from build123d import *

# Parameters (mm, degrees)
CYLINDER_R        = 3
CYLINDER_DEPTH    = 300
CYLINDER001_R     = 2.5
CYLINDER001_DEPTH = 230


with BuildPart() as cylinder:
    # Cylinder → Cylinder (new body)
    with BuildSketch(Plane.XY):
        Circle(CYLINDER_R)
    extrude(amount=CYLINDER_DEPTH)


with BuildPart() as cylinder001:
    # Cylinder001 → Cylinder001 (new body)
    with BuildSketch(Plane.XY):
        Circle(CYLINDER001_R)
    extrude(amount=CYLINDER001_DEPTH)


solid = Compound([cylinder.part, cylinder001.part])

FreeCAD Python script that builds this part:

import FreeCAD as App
import Part
import Sketcher

V = App.Vector

doc = App.newDocument("Part")
body = doc.addObject("PartDesign::Body", "Body")

# Sketch on XY plane
sketch1 = body.newObject("Sketcher::SketchObject", "Sketch")
sketch1.AttachmentSupport = (doc.getObject("XY_Plane"), [""])
sketch1.MapMode = "FlatFace"
sketch1.addGeometry(Part.Circle(V(0, 0, 0), V(0, 0, 1), 3), False)
sketch1.addConstraint(Sketcher.Constraint("Coincident", 0, 3, -1, 1))
sketch1.addConstraint(Sketcher.Constraint("Diameter", 0, 6.0))
pad1 = body.newObject("PartDesign::Pad", "Pad")
pad1.Profile = sketch1
pad1.Length = 300
body2 = doc.addObject("PartDesign::Body", "Body001")

# Sketch on XY plane
sketch2 = body2.newObject("Sketcher::SketchObject", "Sketch001")
sketch2.AttachmentSupport = (doc.getObject("XY_Plane001"), [""])
sketch2.MapMode = "FlatFace"
sketch2.addGeometry(Part.Circle(V(0, 0, 0), V(0, 0, 1), 2.5), False)
sketch2.addConstraint(Sketcher.Constraint("Coincident", 0, 3, -1, 1))
sketch2.addConstraint(Sketcher.Constraint("Diameter", 0, 5.0))
pad2 = body2.newObject("PartDesign::Pad", "Pad001")
pad2.Profile = sketch2
pad2.Length = 230

doc.recompute()
